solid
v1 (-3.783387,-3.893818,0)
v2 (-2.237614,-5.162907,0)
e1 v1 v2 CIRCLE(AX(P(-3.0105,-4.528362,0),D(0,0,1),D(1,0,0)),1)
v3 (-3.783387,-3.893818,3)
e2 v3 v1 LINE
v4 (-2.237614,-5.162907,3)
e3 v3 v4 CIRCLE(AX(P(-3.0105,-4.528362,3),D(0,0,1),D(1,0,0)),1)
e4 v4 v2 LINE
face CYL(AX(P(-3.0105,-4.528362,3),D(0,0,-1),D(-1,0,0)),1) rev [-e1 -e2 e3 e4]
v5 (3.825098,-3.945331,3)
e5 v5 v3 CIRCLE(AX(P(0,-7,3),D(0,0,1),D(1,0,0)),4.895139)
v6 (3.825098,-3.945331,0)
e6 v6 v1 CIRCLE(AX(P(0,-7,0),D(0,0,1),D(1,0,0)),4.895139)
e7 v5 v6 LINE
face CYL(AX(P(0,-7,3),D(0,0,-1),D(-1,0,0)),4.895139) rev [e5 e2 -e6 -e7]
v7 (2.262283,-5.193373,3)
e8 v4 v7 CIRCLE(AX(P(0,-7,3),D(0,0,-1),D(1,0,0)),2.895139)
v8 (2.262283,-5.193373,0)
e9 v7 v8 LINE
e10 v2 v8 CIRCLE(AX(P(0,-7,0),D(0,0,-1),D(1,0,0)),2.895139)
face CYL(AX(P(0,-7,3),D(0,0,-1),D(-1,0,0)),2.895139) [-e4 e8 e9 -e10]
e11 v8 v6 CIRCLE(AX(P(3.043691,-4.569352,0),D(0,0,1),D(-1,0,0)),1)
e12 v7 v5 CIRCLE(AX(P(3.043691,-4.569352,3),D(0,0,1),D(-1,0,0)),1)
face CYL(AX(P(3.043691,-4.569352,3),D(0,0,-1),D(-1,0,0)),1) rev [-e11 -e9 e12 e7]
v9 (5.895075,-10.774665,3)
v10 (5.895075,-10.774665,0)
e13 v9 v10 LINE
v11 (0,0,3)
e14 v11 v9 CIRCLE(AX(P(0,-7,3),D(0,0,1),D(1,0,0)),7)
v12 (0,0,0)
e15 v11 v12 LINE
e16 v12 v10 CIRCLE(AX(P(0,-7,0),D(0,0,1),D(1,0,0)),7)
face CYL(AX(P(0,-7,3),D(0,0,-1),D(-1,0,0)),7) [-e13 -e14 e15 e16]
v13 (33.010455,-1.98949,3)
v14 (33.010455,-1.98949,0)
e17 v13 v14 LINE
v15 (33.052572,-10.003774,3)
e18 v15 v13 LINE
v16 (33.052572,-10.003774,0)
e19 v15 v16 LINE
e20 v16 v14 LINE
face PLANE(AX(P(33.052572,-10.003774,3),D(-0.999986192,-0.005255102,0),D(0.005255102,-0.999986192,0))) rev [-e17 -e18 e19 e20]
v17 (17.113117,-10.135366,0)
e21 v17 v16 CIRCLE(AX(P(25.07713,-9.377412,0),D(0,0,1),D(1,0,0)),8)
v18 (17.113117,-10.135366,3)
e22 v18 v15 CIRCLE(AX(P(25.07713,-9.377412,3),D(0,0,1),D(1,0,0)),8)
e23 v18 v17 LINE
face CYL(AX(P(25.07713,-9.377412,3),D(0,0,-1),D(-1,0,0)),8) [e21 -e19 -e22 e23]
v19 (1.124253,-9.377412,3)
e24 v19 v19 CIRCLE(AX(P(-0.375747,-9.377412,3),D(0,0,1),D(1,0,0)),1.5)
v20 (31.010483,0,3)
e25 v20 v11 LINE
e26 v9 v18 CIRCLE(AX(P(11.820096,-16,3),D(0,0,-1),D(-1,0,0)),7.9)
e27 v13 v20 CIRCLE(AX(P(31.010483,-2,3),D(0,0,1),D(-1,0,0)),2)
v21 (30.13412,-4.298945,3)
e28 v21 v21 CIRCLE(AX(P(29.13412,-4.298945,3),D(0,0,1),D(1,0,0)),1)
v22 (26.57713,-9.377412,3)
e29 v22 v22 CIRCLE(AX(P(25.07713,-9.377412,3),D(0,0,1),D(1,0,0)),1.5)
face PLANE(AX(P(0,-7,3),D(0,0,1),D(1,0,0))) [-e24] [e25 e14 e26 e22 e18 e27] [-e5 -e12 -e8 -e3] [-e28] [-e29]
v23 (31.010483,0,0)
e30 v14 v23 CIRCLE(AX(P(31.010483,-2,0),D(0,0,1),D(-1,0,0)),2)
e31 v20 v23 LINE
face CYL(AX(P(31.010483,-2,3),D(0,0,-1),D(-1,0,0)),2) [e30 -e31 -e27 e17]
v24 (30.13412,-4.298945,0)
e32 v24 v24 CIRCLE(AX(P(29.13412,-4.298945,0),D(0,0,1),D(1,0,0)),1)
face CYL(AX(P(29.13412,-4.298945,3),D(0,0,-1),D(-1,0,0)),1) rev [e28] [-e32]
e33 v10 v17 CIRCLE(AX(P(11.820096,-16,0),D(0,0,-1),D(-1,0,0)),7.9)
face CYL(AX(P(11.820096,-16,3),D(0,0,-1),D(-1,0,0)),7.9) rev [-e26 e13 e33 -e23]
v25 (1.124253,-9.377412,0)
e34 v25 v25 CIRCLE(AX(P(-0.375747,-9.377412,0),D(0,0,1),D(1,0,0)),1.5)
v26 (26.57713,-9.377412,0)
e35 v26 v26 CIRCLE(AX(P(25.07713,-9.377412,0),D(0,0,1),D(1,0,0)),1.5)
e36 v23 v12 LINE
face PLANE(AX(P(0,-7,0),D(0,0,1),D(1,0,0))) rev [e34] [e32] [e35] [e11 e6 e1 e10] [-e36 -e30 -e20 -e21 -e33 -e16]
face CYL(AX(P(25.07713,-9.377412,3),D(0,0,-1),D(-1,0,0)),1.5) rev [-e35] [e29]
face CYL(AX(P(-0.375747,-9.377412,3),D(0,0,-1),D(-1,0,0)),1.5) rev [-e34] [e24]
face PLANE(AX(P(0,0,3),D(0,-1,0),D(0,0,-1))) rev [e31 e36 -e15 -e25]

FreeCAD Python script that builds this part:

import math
import FreeCAD as App
import Part
import Sketcher

V = App.Vector

doc = App.newDocument("Part")
params = doc.addObject("Spreadsheet::Sheet", "Params")
for row, (alias, value) in enumerate([
    ("sketch1_diameter", "3 mm"),
    ("sketch1_diameter2", "2 mm"),
    ("sketch1_radius", "7 mm"),
    ("sketch1_radius2", "8 mm"),
    ("sketch1_radius3", "2 mm"),
    ("pad1_length", "3 mm"),
], start=1):
    params.set(f"A{row}", alias)
    params.set(f"B{row}", "=" + value)
    params.setAlias(f"B{row}", alias)

body = doc.addObject("PartDesign::Body", "Body")

# Sketch on XY plane
sketch1 = body.newObject("Sketcher::SketchObject", "Sketch")
sketch1.AttachmentSupport = (doc.getObject("XY_Plane"), [""])
sketch1.MapMode = "FlatFace"
sketch1.addGeometry(Part.LineSegment(V(31, 0, 0), V(0, 0, 0)), False)
sketch1.addGeometry(Part.ArcOfCircle(Part.Circle(V(0, -7, 0), V(0, 0, 1), 7), math.radians(90), math.radians(327)), False)
sketch1.addGeometry(Part.ArcOfCircle(Part.Circle(V(11.8, -16, 0), V(0, 0, 1), 7.9), math.radians(48), math.radians(139)), False)
sketch1.addGeometry(Part.ArcOfCircle(Part.Circle(V(25.1, -9.4, 0), V(0, 0, 1), 8), math.radians(-175), math.radians(-4)), False)
sketch1.addGeometry(Part.LineSegment(V(33.1, -10, 0), V(33, -2, 0)), False)
sketch1.addGeometry(Part.ArcOfCircle(Part.Circle(V(31, -2, 0), V(0, 0, 1), 2), math.radians(0), math.radians(90)), False)
sketch1.addGeometry(Part.Circle(V(25.1, -9.4, 0), V(0, 0, 1), 1.5), False)
sketch1.addGeometry(Part.Circle(V(-0.4, -9.4, 0), V(0, 0, 1), 1.5), False)
sketch1.addGeometry(Part.Circle(V(29.1, -4.3, 0), V(0, 0, 1), 1), False)
sketch1.addGeometry(Part.ArcOfCircle(Part.Circle(V(0, -7, 0), V(0, 0, 1), 2.9), math.radians(39), math.radians(141)), False)
sketch1.addGeometry(Part.ArcOfCircle(Part.Circle(V(-3, -4.5, 0), V(0, 0, 1), 1), math.radians(141), math.radians(321)), False)
sketch1.addGeometry(Part.ArcOfCircle(Part.Circle(V(0, -7, 0), V(0, 0, 1), 4.9), math.radians(39), math.radians(141)), False)
sketch1.addGeometry(Part.ArcOfCircle(Part.Circle(V(3, -4.6, 0), V(0, 0, 1), 1), math.radians(-141), math.radians(39)), False)
sketch1.addConstraint(Sketcher.Constraint("Tangent", 0, 2, 1, 1))
sketch1.addConstraint(Sketcher.Constraint("Coincident", 1, 2, 2, 2))
sketch1.addConstraint(Sketcher.Constraint("Coincident", 2, 1, 3, 1))
sketch1.addConstraint(Sketcher.Constraint("Coincident", 3, 2, 4, 1))
sketch1.addConstraint(Sketcher.Constraint("Tangent", 4, 2, 5, 1))
sketch1.addConstraint(Sketcher.Constraint("Tangent", 5, 2, 0, 1))
sketch1.addConstraint(Sketcher.Constraint("Tangent", 9, 2, 10, 2))
sketch1.addConstraint(Sketcher.Constraint("Tangent", 10, 1, 11, 2))
sketch1.addConstraint(Sketcher.Constraint("Tangent", 11, 1, 12, 2))
sketch1.addConstraint(Sketcher.Constraint("Tangent", 12, 1, 9, 1))
sketch1.addConstraint(Sketcher.Constraint("Horizontal", 0))
sketch1.addConstraint(Sketcher.Constraint("Coincident", 0, 2, -1, 1))
sketch1.addConstraint(Sketcher.Constraint("Coincident", 6, 3, 3, 3))
sketch1.addConstraint(Sketcher.Constraint("Coincident", 9, 3, 1, 3))
sketch1.addConstraint(Sketcher.Constraint("Coincident", 11, 3, 1, 3))
sketch1.addConstraint(Sketcher.Constraint("Equal", 6, 7))
sketch1.addConstraint(Sketcher.Constraint("Equal", 8, 10))
sketch1.addConstraint(Sketcher.Constraint("Horizontal", 6, 3, 7, 3))
sketch1.addConstraint(Sketcher.Constraint("Diameter", 6, 3.0))
sketch1.addConstraint(Sketcher.Constraint("Diameter", 8, 2.0))
sketch1.addConstraint(Sketcher.Constraint("Radius", 1, 7.0))
sketch1.addConstraint(Sketcher.Constraint("Radius", 3, 8.0))
sketch1.addConstraint(Sketcher.Constraint("Radius", 5, 2.0))
sketch1.addConstraint(Sketcher.Constraint("Radius", 2, 7.9))
sketch1.addConstraint(Sketcher.Constraint("DistanceY", 2, 3, -1, 1, 16.0))
sketch1.addConstraint(Sketcher.Constraint("Radius", 9, 2.895139))
sketch1.addConstraint(Sketcher.Constraint("DistanceX", 10, 3, -1, 1, 3.0105))
sketch1.addConstraint(Sketcher.Constraint("DistanceX", -1, 1, 11, 1, 3.825098))
sketch1.addConstraint(Sketcher.Constraint("DistanceY", 1, 2, 2, 1, 0.639298))
sketch1.addConstraint(Sketcher.Constraint("DistanceX", 0, 2, 0, 1, 31.010483))
sketch1.addConstraint(Sketcher.Constraint("DistanceX", -1, 1, 3, 3, 25.07713))
sketch1.addConstraint(Sketcher.Constraint("DistanceX", -1, 1, 8, 3, 29.13412))
sketch1.addConstraint(Sketcher.Constraint("DistanceX", -1, 1, 3, 2, 33.052572))
sketch1.addConstraint(Sketcher.Constraint("DistanceX", 7, 3, 5, 3, 31.38623))
sketch1.addConstraint(Sketcher.Constraint("DistanceY", 7, 3, 10, 3, 4.84905))
sketch1.addConstraint(Sketcher.Constraint("DistanceY", 2, 1, 8, 3, 5.836421))
sketch1.setExpression("Constraints[18]", "Params.sketch1_diameter")
sketch1.setExpression("Constraints[19]", "Params.sketch1_diameter2")
sketch1.setExpression("Constraints[20]", "Params.sketch1_radius")
sketch1.setExpression("Constraints[21]", "Params.sketch1_radius2")
sketch1.setExpression("Constraints[22]", "Params.sketch1_radius3")
pad1 = body.newObject("PartDesign::Pad", "Pad")
pad1.Profile = sketch1
pad1.setExpression("Length", "Params.pad1_length")

doc.recompute()
